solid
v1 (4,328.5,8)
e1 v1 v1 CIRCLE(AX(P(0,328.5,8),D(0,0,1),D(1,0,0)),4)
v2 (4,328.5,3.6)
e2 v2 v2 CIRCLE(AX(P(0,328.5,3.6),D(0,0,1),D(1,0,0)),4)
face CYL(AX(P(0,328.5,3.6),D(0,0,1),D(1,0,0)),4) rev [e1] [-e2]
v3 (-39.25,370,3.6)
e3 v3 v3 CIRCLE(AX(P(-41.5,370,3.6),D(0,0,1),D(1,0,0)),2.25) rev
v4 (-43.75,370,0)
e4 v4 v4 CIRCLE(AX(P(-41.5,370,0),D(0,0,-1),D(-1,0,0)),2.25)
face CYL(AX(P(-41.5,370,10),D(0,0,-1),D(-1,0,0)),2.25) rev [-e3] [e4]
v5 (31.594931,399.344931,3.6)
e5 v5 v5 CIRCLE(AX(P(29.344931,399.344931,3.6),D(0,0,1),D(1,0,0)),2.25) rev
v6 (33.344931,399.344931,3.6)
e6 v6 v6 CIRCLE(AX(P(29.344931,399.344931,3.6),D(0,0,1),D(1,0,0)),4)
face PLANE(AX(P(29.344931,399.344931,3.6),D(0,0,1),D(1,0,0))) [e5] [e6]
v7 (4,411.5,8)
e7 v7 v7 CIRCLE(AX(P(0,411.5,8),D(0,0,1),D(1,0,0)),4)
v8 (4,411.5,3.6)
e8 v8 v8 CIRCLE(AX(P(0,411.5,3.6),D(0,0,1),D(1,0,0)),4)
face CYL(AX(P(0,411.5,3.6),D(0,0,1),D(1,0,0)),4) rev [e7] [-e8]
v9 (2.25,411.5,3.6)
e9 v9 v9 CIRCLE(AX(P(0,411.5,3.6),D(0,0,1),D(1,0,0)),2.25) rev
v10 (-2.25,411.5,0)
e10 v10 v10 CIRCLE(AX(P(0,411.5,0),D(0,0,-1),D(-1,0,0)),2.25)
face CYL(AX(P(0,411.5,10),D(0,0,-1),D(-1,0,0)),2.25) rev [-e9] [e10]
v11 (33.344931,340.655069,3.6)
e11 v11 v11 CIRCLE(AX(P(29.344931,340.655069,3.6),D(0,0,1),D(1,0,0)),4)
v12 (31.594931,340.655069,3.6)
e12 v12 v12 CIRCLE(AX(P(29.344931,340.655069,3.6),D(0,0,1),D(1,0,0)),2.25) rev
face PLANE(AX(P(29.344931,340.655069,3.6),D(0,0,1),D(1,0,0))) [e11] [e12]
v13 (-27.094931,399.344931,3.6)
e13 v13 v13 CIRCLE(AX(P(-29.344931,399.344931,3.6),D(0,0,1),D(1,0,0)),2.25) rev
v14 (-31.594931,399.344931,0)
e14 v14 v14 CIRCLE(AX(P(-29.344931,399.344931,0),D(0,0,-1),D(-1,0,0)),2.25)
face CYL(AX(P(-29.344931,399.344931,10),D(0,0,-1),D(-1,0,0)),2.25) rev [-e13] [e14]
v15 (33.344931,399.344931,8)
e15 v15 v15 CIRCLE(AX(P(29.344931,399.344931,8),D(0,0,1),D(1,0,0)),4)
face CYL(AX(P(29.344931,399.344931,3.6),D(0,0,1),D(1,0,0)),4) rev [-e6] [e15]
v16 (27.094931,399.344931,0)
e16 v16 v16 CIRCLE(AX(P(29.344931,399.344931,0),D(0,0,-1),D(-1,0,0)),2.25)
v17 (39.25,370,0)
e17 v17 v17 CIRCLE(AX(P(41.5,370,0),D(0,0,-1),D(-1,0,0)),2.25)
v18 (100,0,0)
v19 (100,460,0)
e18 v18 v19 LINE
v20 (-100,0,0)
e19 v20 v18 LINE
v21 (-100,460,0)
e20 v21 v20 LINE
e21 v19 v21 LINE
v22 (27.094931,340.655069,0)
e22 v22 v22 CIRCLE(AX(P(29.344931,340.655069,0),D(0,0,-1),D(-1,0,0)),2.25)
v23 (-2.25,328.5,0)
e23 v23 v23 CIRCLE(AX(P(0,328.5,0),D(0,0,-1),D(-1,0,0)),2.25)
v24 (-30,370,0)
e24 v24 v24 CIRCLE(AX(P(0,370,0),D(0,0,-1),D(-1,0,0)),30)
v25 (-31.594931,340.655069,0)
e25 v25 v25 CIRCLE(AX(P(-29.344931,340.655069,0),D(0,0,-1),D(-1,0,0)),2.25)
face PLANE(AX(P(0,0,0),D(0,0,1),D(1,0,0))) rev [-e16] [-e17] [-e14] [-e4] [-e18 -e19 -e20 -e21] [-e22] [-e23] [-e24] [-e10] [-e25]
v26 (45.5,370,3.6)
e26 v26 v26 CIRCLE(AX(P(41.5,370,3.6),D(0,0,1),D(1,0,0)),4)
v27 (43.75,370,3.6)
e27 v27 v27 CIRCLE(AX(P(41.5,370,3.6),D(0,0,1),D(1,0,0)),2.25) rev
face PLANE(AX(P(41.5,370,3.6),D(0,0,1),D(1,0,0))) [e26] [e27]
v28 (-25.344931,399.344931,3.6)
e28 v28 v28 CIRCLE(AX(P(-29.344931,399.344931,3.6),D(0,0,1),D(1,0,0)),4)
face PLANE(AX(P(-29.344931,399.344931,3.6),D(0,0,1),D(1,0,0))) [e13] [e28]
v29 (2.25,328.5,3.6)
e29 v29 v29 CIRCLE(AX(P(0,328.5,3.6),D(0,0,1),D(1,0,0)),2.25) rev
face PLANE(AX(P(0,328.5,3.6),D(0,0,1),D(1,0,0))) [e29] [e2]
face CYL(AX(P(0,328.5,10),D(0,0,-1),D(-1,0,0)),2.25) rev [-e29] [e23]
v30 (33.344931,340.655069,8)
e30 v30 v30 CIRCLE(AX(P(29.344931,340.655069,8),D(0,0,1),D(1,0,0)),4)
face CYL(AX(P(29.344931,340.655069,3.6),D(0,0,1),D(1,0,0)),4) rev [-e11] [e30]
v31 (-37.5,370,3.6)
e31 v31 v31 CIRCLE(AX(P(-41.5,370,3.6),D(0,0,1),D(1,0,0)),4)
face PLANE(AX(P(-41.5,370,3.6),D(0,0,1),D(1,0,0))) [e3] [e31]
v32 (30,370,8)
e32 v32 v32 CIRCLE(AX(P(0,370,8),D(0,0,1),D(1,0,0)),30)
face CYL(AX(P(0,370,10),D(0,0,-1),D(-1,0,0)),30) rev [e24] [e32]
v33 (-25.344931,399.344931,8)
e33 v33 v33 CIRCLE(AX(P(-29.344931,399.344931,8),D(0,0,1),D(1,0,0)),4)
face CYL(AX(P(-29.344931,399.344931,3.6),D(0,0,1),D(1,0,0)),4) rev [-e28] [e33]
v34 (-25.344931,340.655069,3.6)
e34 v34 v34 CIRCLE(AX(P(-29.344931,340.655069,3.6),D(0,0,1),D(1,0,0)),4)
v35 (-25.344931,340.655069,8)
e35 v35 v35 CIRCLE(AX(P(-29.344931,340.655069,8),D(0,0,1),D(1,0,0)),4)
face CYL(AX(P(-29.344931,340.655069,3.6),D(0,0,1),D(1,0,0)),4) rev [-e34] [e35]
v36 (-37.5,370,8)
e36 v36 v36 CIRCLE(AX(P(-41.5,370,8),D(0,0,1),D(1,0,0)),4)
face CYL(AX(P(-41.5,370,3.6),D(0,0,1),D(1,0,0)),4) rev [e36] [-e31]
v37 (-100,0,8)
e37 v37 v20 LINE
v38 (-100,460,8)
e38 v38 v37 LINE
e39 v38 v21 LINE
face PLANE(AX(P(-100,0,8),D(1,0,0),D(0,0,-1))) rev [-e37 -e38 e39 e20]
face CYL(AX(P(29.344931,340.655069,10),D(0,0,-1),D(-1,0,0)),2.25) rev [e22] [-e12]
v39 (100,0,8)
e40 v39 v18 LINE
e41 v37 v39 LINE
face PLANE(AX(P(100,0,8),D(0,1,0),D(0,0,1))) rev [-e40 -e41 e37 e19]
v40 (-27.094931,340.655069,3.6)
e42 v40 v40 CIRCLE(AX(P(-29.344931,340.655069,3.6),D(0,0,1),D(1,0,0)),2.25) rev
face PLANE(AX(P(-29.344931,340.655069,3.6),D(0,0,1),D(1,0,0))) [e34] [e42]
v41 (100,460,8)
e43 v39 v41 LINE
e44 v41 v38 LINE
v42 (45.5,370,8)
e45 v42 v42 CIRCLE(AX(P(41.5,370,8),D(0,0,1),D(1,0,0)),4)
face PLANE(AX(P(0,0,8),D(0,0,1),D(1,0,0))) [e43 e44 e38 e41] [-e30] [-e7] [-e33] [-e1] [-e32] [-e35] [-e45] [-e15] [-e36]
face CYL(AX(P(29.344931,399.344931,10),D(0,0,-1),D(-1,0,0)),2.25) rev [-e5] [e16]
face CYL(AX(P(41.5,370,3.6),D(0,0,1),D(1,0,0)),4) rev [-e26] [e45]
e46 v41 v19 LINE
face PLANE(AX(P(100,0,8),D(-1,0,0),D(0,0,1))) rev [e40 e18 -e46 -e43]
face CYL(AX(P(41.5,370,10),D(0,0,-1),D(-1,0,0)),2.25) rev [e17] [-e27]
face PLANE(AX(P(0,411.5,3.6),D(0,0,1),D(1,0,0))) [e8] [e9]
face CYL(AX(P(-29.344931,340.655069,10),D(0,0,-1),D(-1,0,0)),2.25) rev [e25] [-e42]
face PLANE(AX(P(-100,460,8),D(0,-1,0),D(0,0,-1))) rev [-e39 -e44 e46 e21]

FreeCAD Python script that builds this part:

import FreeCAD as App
import Part
import Sketcher
from FreeCAD import Vector
Q = App.Units.Quantity

doc = App.newDocument("Part")
body = doc.addObject("PartDesign::Body", "Body")

sketch1 = body.newObject("Sketcher::SketchObject", "Sketch")
sketch1.AttachmentSupport = (doc.getObject("XY_Plane"), [""])
sketch1.MapMode = "FlatFace"
sketch1.addGeometry(Part.LineSegment(Vector(-100, 460, 0), Vector(-100, 0, 0)), False)
sketch1.addGeometry(Part.LineSegment(Vector(-100, 0, 0), Vector(100, 0, 0)), False)
sketch1.addGeometry(Part.LineSegment(Vector(100, 0, 0), Vector(100, 460, 0)), False)
sketch1.addGeometry(Part.LineSegment(Vector(100, 460, 0), Vector(-100, 460, 0)), False)
sketch1.addConstraint(Sketcher.Constraint("Coincident", 0, 2, 1, 1))
sketch1.addConstraint(Sketcher.Constraint("Coincident", 1, 2, 2, 1))
sketch1.addConstraint(Sketcher.Constraint("Coincident", 2, 2, 3, 1))
sketch1.addConstraint(Sketcher.Constraint("Coincident", 3, 2, 0, 1))
sketch1.addConstraint(Sketcher.Constraint("Vertical", 0))
sketch1.addConstraint(Sketcher.Constraint("Horizontal", 1))
sketch1.addConstraint(Sketcher.Constraint("Vertical", 2))
sketch1.addConstraint(Sketcher.Constraint("Horizontal", 3))
sketch1.addConstraint(Sketcher.Constraint("Symmetric", 0, 2, 1, 2, -1, 1))
sketch1.addConstraint(Sketcher.Constraint("DistanceX", 1, 1, 1, 2, Q("200 mm")))
sketch1.addConstraint(Sketcher.Constraint("DistanceY", 0, 2, 0, 1, Q("460 mm")))
pad1 = body.newObject("PartDesign::Pad", "Pad")
pad1.Profile = sketch1
pad1.Length = 8

sketch2 = body.newObject("Sketcher::SketchObject", "Sketch001")
sketch2.AttachmentSupport = (doc.getObject("XY_Plane"), [""])
sketch2.MapMode = "FlatFace"
sketch2.addGeometry(Part.Circle(Vector(0, 370, 0), Vector(0, 0, 1), 30), False)
sketch2.addConstraint(Sketcher.Constraint("PointOnObject", 0, 3, -2))
sketch2.addConstraint(Sketcher.Constraint("Diameter", 0, Q("60 mm")))
sketch2.addConstraint(Sketcher.Constraint("DistanceY", -1, 1, 0, 3, Q("370 mm")))
pocket1 = body.newObject("PartDesign::Pocket", "Pocket")
pocket1.Profile = sketch2
pocket1.Length = 10
pocket1.Reversed = True

sketch3 = body.newObject("Sketcher::SketchObject", "Sketch002")
sketch3.AttachmentSupport = (doc.getObject("XY_Plane"), [""])
sketch3.MapMode = "FlatFace"
sketch3.addGeometry(Part.Circle(Vector(0, 411.5, 0), Vector(0, 0, 1), 2.2), False)
sketch3.addGeometry(Part.Circle(Vector(-29.3, 399.3, 0), Vector(0, 0, 1), 2.2), False)
sketch3.addGeometry(Part.Circle(Vector(-41.5, 370, 0), Vector(0, 0, 1), 2.2), False)
sketch3.addGeometry(Part.Circle(Vector(-29.3, 340.7, 0), Vector(0, 0, 1), 2.2), False)
sketch3.addGeometry(Part.Circle(Vector(0, 328.5, 0), Vector(0, 0, 1), 2.2), False)
sketch3.addGeometry(Part.Circle(Vector(29.3, 340.7, 0), Vector(0, 0, 1), 2.2), False)
sketch3.addGeometry(Part.Circle(Vector(41.5, 370, 0), Vector(0, 0, 1), 2.2), False)
sketch3.addGeometry(Part.Circle(Vector(29.3, 399.3, 0), Vector(0, 0, 1), 2.2), False)
sketch3.addConstraint(Sketcher.Constraint("Equal", 0, 1))
sketch3.addConstraint(Sketcher.Constraint("Equal", 1, 2))
sketch3.addConstraint(Sketcher.Constraint("Equal", 2, 3))
sketch3.addConstraint(Sketcher.Constraint("Equal", 3, 4))
sketch3.addConstraint(Sketcher.Constraint("Equal", 4, 5))
sketch3.addConstraint(Sketcher.Constraint("Equal", 5, 6))
sketch3.addConstraint(Sketcher.Constraint("Equal", 6, 7))
sketch3.addConstraint(Sketcher.Constraint("Symmetric", 3, 3, 5, 3, -2))
sketch3.addConstraint(Sketcher.Constraint("Symmetric", 2, 3, 6, 3, -2))
sketch3.addConstraint(Sketcher.Constraint("Symmetric", 1, 3, 7, 3, -2))
sketch3.addConstraint(Sketcher.Constraint("PointOnObject", 0, 3, -2))
sketch3.addConstraint(Sketcher.Constraint("PointOnObject", 4, 3, -2))
sketch3.addConstraint(Sketcher.Constraint("Vertical", 1, 3, 3, 3))
sketch3.addConstraint(Sketcher.Constraint("Diameter", 0, Q("4.5 mm")))
sketch3.addConstraint(Sketcher.Constraint("DistanceY", -1, 1, 2, 3, Q("370 mm")))
sketch3.addConstraint(Sketcher.Constraint("DistanceY", 4, 3, 0, 3, Q("83 mm")))
sketch3.addConstraint(Sketcher.Constraint("DistanceY", -1, 1, 0, 3, Q("411.5 mm")))
sketch3.addConstraint(Sketcher.Constraint("DistanceX", 2, 3, -1, 1, Q("41.5 mm")))
sketch3.addConstraint(Sketcher.Constraint("DistanceX", 1, 3, -1, 1, Q("29.344931 mm")))
sketch3.addConstraint(Sketcher.Constraint("DistanceY", -1, 1, 1, 3, Q("399.344931 mm")))
sketch3.addConstraint(Sketcher.Constraint("DistanceY", -1, 1, 3, 3, Q("340.655069 mm")))
pocket2 = body.newObject("PartDesign::Pocket", "Pocket001")
pocket2.Profile = sketch3
pocket2.Length = 10
pocket2.Reversed = True

sketch4 = body.newObject("Sketcher::SketchObject", "Sketch003")
sketch4.AttachmentSupport = (doc.getObject("XY_Plane"), [""])
sketch4.MapMode = "FlatFace"
sketch4.AttachmentOffset = App.Placement(Vector(0, 0, 8), App.Rotation())
sketch4.addGeometry(Part.Circle(Vector(29.3, 399.3, 0), Vector(0, 0, 1), 4), False)
sketch4.addGeometry(Part.Circle(Vector(41.5, 370, 0), Vector(0, 0, 1), 4), False)
sketch4.addGeometry(Part.Circle(Vector(29.3, 340.7, 0), Vector(0, 0, 1), 4), False)
sketch4.addGeometry(Part.Circle(Vector(0, 328.5, 0), Vector(0, 0, 1), 4), False)
sketch4.addGeometry(Part.Circle(Vector(-29.3, 340.7, 0), Vector(0, 0, 1), 4), False)
sketch4.addGeometry(Part.Circle(Vector(-41.5, 370, 0), Vector(0, 0, 1), 4), False)
sketch4.addGeometry(Part.Circle(Vector(-29.3, 399.3, 0), Vector(0, 0, 1), 4), False)
sketch4.addGeometry(Part.Circle(Vector(0, 411.5, 0), Vector(0, 0, 1), 4), False)
sketch4.addConstraint(Sketcher.Constraint("Equal", 0, 1))
sketch4.addConstraint(Sketcher.Constraint("Equal", 1, 2))
sketch4.addConstraint(Sketcher.Constraint("Equal", 2, 3))
sketch4.addConstraint(Sketcher.Constraint("Equal", 3, 4))
sketch4.addConstraint(Sketcher.Constraint("Equal", 4, 5))
sketch4.addConstraint(Sketcher.Constraint("Equal", 5, 6))
sketch4.addConstraint(Sketcher.Constraint("Equal", 6, 7))
sketch4.addConstraint(Sketcher.Constraint("Symmetric", 2, 3, 4, 3, -2))
sketch4.addConstraint(Sketcher.Constraint("Symmetric", 1, 3, 5, 3, -2))
sketch4.addConstraint(Sketcher.Constraint("Symmetric", 0, 3, 6, 3, -2))
sketch4.addConstraint(Sketcher.Constraint("PointOnObject", 3, 3, -2))
sketch4.addConstraint(Sketcher.Constraint("PointOnObject", 7, 3, -2))
sketch4.addConstraint(Sketcher.Constraint("Vertical", 0, 3, 2, 3))
sketch4.addConstraint(Sketcher.Constraint("Diameter", 0, Q("8 mm")))
sketch4.addConstraint(Sketcher.Constraint("DistanceY", -1, 1, 1, 3, Q("370 mm")))
sketch4.addConstraint(Sketcher.Constraint("DistanceX", 5, 3, 1, 3, Q("83 mm")))
sketch4.addConstraint(Sketcher.Constraint("DistanceY", -1, 1, 3, 3, Q("328.5 mm")))
sketch4.addConstraint(Sketcher.Constraint("DistanceY", -1, 1, 7, 3, Q("411.5 mm")))
sketch4.addConstraint(Sketcher.Constraint("DistanceX", -1, 1, 0, 3, Q("29.344931 mm")))
sketch4.addConstraint(Sketcher.Constraint("DistanceY", -1, 1, 0, 3, Q("399.344931 mm")))
sketch4.addConstraint(Sketcher.Constraint("DistanceY", -1, 1, 2, 3, Q("340.655069 mm")))
pocket3 = body.newObject("PartDesign::Pocket", "Pocket002")
pocket3.Profile = sketch4
pocket3.Length = 4.4

doc.recompute()
